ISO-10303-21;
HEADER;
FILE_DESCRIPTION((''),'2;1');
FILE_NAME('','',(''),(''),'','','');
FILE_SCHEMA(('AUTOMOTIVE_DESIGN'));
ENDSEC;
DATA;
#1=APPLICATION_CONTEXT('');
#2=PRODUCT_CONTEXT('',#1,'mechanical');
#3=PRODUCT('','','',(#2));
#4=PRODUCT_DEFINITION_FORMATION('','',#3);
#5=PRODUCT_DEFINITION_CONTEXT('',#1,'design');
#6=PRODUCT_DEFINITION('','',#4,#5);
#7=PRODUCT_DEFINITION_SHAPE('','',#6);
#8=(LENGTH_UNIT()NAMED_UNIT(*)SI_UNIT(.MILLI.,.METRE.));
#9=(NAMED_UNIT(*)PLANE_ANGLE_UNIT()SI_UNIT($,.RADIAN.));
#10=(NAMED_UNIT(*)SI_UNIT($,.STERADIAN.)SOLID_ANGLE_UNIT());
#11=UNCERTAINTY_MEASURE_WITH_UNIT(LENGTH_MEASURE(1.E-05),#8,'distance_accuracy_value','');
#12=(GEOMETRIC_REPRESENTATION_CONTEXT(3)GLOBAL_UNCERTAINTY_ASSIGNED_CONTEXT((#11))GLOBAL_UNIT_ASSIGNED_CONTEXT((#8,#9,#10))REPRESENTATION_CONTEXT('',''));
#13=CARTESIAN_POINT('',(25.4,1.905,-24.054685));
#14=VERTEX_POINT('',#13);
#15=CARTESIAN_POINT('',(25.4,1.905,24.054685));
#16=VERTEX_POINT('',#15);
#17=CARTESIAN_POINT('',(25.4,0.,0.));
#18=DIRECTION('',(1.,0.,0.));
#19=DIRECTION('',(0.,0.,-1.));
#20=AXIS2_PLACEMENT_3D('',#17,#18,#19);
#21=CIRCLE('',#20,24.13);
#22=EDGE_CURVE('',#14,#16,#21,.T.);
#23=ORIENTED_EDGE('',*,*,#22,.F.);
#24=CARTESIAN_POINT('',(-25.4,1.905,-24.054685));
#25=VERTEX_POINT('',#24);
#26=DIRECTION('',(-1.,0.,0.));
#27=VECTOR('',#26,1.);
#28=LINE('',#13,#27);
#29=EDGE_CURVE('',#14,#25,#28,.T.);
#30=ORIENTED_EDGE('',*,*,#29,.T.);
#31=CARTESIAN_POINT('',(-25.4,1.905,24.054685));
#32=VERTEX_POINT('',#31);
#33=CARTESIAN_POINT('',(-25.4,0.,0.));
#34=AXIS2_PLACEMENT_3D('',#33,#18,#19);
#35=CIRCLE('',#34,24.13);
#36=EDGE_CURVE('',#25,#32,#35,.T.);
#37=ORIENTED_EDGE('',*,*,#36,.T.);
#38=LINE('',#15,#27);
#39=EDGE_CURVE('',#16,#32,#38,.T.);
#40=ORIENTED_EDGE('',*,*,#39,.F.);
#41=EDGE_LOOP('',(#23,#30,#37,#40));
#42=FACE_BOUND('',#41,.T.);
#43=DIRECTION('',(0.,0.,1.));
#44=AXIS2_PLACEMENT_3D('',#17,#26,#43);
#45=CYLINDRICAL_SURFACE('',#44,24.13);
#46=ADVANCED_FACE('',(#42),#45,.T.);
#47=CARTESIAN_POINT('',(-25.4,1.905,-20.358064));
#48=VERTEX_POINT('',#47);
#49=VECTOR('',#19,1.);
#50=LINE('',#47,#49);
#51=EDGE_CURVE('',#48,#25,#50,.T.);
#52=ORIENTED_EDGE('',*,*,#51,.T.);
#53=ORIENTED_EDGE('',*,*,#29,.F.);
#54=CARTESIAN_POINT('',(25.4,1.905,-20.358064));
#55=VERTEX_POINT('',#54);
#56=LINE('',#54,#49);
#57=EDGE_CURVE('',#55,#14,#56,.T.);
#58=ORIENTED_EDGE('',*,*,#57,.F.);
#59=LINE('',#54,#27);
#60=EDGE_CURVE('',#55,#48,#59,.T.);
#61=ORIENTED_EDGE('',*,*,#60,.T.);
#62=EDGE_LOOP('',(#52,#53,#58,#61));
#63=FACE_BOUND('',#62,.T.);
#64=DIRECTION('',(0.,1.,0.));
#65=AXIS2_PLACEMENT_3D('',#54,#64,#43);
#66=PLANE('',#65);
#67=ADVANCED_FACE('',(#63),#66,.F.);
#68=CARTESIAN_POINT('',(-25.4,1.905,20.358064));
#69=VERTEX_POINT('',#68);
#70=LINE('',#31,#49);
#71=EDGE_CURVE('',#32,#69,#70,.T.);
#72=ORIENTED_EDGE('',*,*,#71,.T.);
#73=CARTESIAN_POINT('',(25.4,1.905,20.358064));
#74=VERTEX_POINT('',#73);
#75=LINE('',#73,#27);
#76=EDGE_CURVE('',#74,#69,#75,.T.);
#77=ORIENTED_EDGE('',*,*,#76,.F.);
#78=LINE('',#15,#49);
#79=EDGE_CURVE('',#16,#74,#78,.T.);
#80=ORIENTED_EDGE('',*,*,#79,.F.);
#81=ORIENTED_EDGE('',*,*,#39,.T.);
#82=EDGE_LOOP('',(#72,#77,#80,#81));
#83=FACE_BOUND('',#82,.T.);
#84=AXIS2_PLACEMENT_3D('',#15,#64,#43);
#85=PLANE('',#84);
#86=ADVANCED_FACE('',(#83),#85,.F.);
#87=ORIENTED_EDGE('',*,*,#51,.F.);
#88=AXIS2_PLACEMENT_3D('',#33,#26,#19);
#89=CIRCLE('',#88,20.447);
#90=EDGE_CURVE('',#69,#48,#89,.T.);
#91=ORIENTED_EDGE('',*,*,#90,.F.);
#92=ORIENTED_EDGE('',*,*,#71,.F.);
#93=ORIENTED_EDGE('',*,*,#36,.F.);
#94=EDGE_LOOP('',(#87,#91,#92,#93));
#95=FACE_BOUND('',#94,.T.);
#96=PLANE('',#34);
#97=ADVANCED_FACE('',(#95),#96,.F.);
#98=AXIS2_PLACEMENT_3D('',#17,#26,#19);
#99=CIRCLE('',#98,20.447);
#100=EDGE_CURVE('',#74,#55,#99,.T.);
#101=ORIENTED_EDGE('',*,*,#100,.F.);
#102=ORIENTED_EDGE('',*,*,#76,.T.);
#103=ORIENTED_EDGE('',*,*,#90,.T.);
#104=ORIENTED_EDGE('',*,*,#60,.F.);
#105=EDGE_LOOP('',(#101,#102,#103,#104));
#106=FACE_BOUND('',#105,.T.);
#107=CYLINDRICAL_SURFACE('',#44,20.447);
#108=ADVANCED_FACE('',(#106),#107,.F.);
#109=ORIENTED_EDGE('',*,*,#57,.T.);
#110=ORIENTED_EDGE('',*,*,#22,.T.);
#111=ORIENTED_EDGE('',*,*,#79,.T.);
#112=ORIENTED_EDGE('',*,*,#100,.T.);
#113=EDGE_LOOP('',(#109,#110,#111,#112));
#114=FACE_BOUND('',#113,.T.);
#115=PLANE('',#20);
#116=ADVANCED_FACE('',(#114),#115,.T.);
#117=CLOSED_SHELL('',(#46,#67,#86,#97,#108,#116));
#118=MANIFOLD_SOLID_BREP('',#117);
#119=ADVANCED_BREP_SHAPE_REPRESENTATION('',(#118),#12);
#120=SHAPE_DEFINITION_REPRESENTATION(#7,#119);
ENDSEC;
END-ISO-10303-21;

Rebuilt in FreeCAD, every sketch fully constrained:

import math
import FreeCAD as App
import Part
import Sketcher
from FreeCAD import Vector
Q = App.Units.Quantity

doc = App.newDocument("Part")
body = doc.addObject("PartDesign::Body", "Body")

# Sketch on YZ plane
sketch1 = body.newObject("Sketcher::SketchObject", "Sketch")
sketch1.AttachmentSupport = (doc.getObject("YZ_Plane"), [""])
sketch1.MapMode = "FlatFace"
sketch1.addGeometry([
    Part.LineSegment(Vector(1.905, 24.054685, 0), Vector(1.905, 20.358064, 0)),
    Part.ArcOfCircle(Part.Circle(Vector(0, 0, 0), Vector(0, 0, 1), 20.447), math.radians(-84.654131), math.radians(84.654131)),
    Part.LineSegment(Vector(1.905, -20.358064, 0), Vector(1.905, -24.054685, 0)),
    Part.ArcOfCircle(Part.Circle(Vector(0, 0, 0), Vector(0, 0, 1), 24.13), math.radians(-85.471937), math.radians(85.471937)),
], False)
sketch1.addConstraint([
    Sketcher.Constraint("Coincident", 0, 2, 1, 2),
    Sketcher.Constraint("Coincident", 1, 1, 2, 1),
    Sketcher.Constraint("Coincident", 2, 2, 3, 1),
    Sketcher.Constraint("Coincident", 3, 2, 0, 1),
    Sketcher.Constraint("Vertical", 0),
    Sketcher.Constraint("Vertical", 2),
    Sketcher.Constraint("Coincident", 1, 3, -1, 1),
    Sketcher.Constraint("Coincident", 3, 3, -1, 1),
    Sketcher.Constraint("Vertical", 0, 2, 1, 1),
    Sketcher.Constraint("Radius", 3, Q("0.95 in")),
    Sketcher.Constraint("Radius", 1, Q("0.805 in")),
    Sketcher.Constraint("DistanceX", -1, 1, 0, 2, Q("0.075 in")),
])
pad1 = body.newObject("PartDesign::Pad", "Pad")
pad1.Profile = sketch1
pad1.Length = Q("2 in")
pad1.Midplane = True

doc.recompute()
